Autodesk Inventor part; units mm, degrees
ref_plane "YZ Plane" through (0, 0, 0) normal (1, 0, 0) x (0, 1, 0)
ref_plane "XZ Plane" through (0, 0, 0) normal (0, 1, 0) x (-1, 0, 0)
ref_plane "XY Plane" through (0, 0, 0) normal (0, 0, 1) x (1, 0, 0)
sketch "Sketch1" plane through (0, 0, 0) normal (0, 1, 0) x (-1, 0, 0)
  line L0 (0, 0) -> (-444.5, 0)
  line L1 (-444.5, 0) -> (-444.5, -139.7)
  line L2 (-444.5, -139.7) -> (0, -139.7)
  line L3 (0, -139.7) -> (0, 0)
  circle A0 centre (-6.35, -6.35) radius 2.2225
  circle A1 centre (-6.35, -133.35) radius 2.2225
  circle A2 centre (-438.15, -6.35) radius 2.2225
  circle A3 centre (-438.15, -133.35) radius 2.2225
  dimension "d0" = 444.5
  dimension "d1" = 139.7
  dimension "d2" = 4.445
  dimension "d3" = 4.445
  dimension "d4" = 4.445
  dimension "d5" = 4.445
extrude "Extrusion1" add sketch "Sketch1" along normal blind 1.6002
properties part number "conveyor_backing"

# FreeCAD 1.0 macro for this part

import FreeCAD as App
import Part
import Sketcher
Q = App.Units.Quantity


def add_polygon(sketch, points):
    """Adds a closed chain of lines whose ends are joined by coincident constraints."""
    first, n = sketch.GeometryCount, len(points)
    for a, b in zip(points, points[1:] + points[:1]):
        sketch.addGeometry(Part.LineSegment(App.Vector(*a, 0), App.Vector(*b, 0)), False)
    for i in range(n):
        sketch.addConstraint(Sketcher.Constraint("Coincident", first + i, 2, first + (i + 1) % n, 1))

doc = App.newDocument("Part")
body = doc.addObject("PartDesign::Body", "Body")

# Sketch on XZ plane
sketch1 = body.newObject("Sketcher::SketchObject", "Sketch")
sketch1.AttachmentSupport = (doc.getObject("XZ_Plane"), [""])
sketch1.MapMode = "FlatFace"
add_polygon(sketch1, [(0, -139.7), (0, 0), (444.5, 0), (444.5, -139.7)])  # lines 0-3
sketch1.addGeometry(Part.Circle(App.Vector(438.1, -133.3, 0), App.Vector(0, 0, 1), 2.2), False)  # 4
sketch1.addGeometry(Part.Circle(App.Vector(6.3, -133.3, 0), App.Vector(0, 0, 1), 2.2), False)  # 5
sketch1.addGeometry(Part.Circle(App.Vector(438.1, -6.3, 0), App.Vector(0, 0, 1), 2.2), False)  # 6
sketch1.addGeometry(Part.Circle(App.Vector(6.3, -6.3, 0), App.Vector(0, 0, 1), 2.2), False)  # 7
sketch1.addConstraint(Sketcher.Constraint("Vertical", 0))
sketch1.addConstraint(Sketcher.Constraint("Horizontal", 1))
sketch1.addConstraint(Sketcher.Constraint("Vertical", 2))
sketch1.addConstraint(Sketcher.Constraint("Horizontal", 3))
sketch1.addConstraint(Sketcher.Constraint("Coincident", 0, 2, -1, 1))
sketch1.addConstraint(Sketcher.Constraint("Equal", 4, 5))
sketch1.addConstraint(Sketcher.Constraint("Equal", 5, 6))
sketch1.addConstraint(Sketcher.Constraint("Equal", 6, 7))
sketch1.addConstraint(Sketcher.Constraint("Horizontal", 4, 3, 5, 3))
sketch1.addConstraint(Sketcher.Constraint("Horizontal", 6, 3, 7, 3))
sketch1.addConstraint(Sketcher.Constraint("Vertical", 4, 3, 6, 3))
sketch1.addConstraint(Sketcher.Constraint("Vertical", 5, 3, 7, 3))
sketch1.addConstraint(Sketcher.Constraint("Diameter", 4, Q("0.175 in")))
sketch1.addConstraint(Sketcher.Constraint("DistanceX", 1, 1, 1, 2, Q("17.5 in")))
sketch1.addConstraint(Sketcher.Constraint("DistanceY", 0, 1, 0, 2, Q("5.5 in")))
sketch1.addConstraint(Sketcher.Constraint("DistanceX", 5, 3, 4, 3, Q("17 in")))
sketch1.addConstraint(Sketcher.Constraint("DistanceY", 4, 3, 6, 3, Q("5 in")))
sketch1.addConstraint(Sketcher.Constraint("DistanceX", -1, 1, 4, 3, Q("17.25 in")))
sketch1.addConstraint(Sketcher.Constraint("DistanceY", 4, 3, -1, 1, Q("5.25 in")))
pad1 = body.newObject("PartDesign::Pad", "Pad")
pad1.Profile = sketch1
pad1.Length = Q("0.063 in")
pad1.Reversed = True

doc.recompute()
